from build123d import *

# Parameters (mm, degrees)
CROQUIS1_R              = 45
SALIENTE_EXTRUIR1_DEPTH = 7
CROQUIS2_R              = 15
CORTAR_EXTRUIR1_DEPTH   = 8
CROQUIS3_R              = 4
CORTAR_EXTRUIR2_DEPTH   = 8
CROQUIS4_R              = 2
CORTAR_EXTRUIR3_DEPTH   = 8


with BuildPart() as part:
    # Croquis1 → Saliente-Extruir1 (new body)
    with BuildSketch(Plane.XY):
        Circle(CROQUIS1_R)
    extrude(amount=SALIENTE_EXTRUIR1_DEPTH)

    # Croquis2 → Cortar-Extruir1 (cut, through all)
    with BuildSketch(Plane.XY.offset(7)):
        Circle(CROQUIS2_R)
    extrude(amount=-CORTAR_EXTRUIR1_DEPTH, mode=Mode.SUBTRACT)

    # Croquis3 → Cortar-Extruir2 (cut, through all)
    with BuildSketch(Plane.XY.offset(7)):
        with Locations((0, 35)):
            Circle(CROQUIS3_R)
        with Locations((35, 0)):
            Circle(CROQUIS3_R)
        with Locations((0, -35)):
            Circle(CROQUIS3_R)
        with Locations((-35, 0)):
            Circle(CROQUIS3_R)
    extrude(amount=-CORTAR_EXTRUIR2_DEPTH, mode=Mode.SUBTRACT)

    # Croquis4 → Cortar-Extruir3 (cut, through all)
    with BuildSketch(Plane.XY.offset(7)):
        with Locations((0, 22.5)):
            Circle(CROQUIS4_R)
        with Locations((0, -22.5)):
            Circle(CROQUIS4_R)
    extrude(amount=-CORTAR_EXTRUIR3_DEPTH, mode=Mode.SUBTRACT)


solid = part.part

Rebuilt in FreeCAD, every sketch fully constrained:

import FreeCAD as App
import Part
import Sketcher

V = App.Vector
Q = App.Units.Quantity

doc = App.newDocument("Part")
body = doc.addObject("PartDesign::Body", "Body")

# Sketch on XY plane
sketch1 = body.newObject("Sketcher::SketchObject", "Sketch")
sketch1.AttachmentSupport = (doc.getObject("XY_Plane"), [""])
sketch1.MapMode = "FlatFace"
sketch1.addGeometry(Part.Circle(V(0, 0, 0), V(0, 0, 1), 45), False)
sketch1.addConstraint([
    Sketcher.Constraint("Coincident", 0, 3, -1, 1),
    Sketcher.Constraint("Diameter", 0, Q("90 mm")),
])
pad1 = body.newObject("PartDesign::Pad", "Pad")
pad1.Profile = sketch1
pad1.Length = 7

# Sketch on XY plane
sketch2 = body.newObject("Sketcher::SketchObject", "Sketch001")
sketch2.AttachmentSupport = (doc.getObject("XY_Plane"), [""])
sketch2.MapMode = "FlatFace"
sketch2.AttachmentOffset = App.Placement(V(0, 0, 7), App.Rotation())
sketch2.addGeometry(Part.Circle(V(0, 0, 0), V(0, 0, 1), 15), False)
sketch2.addConstraint([
    Sketcher.Constraint("Coincident", 0, 3, -1, 1),
    Sketcher.Constraint("Diameter", 0, Q("30 mm")),
])
pocket1 = body.newObject("PartDesign::Pocket", "Pocket")
pocket1.Profile = sketch2
pocket1.Type = "ThroughAll"

# Sketch on XY plane
sketch3 = body.newObject("Sketcher::SketchObject", "Sketch002")
sketch3.AttachmentSupport = (doc.getObject("XY_Plane"), [""])
sketch3.MapMode = "FlatFace"
sketch3.AttachmentOffset = App.Placement(V(0, 0, 7), App.Rotation())
sketch3.addGeometry([
    Part.Circle(V(0, 35, 0), V(0, 0, 1), 4),
    Part.Circle(V(35, 0, 0), V(0, 0, 1), 4),
    Part.Circle(V(0, -35, 0), V(0, 0, 1), 4),
    Part.Circle(V(-35, 0, 0), V(0, 0, 1), 4),
], False)
sketch3.addConstraint([
    Sketcher.Constraint("Equal", 0, 1),
    Sketcher.Constraint("Equal", 1, 2),
    Sketcher.Constraint("Equal", 2, 3),
    Sketcher.Constraint("Symmetric", 0, 3, 2, 3, -1, 1),
    Sketcher.Constraint("Symmetric", 1, 3, 3, 3, -1, 1),
    Sketcher.Constraint("PointOnObject", 0, 3, -2),
    Sketcher.Constraint("PointOnObject", 1, 3, -1),
    Sketcher.Constraint("Diameter", 0, Q("8 mm")),
    Sketcher.Constraint("DistanceY", -1, 1, 0, 3, Q("35 mm")),
    Sketcher.Constraint("DistanceX", -1, 1, 1, 3, Q("35 mm")),
])
pocket2 = body.newObject("PartDesign::Pocket", "Pocket001")
pocket2.Profile = sketch3
pocket2.Type = "ThroughAll"

# Sketch on XY plane
sketch4 = body.newObject("Sketcher::SketchObject", "Sketch003")
sketch4.AttachmentSupport = (doc.getObject("XY_Plane"), [""])
sketch4.MapMode = "FlatFace"
sketch4.AttachmentOffset = App.Placement(V(0, 0, 7), App.Rotation())
sketch4.addGeometry([
    Part.Circle(V(0, 22.5, 0), V(0, 0, 1), 2),
    Part.Circle(V(0, -22.5, 0), V(0, 0, 1), 2),
], False)
sketch4.addConstraint([
    Sketcher.Constraint("Equal", 0, 1),
    Sketcher.Constraint("Symmetric", 0, 3, 1, 3, -1, 1),
    Sketcher.Constraint("PointOnObject", 0, 3, -2),
    Sketcher.Constraint("Diameter", 0, Q("4 mm")),
    Sketcher.Constraint("DistanceY", 1, 3, 0, 3, Q("45 mm")),
])
pocket3 = body.newObject("PartDesign::Pocket", "Pocket002")
pocket3.Profile = sketch4
pocket3.Type = "ThroughAll"

doc.recompute()
